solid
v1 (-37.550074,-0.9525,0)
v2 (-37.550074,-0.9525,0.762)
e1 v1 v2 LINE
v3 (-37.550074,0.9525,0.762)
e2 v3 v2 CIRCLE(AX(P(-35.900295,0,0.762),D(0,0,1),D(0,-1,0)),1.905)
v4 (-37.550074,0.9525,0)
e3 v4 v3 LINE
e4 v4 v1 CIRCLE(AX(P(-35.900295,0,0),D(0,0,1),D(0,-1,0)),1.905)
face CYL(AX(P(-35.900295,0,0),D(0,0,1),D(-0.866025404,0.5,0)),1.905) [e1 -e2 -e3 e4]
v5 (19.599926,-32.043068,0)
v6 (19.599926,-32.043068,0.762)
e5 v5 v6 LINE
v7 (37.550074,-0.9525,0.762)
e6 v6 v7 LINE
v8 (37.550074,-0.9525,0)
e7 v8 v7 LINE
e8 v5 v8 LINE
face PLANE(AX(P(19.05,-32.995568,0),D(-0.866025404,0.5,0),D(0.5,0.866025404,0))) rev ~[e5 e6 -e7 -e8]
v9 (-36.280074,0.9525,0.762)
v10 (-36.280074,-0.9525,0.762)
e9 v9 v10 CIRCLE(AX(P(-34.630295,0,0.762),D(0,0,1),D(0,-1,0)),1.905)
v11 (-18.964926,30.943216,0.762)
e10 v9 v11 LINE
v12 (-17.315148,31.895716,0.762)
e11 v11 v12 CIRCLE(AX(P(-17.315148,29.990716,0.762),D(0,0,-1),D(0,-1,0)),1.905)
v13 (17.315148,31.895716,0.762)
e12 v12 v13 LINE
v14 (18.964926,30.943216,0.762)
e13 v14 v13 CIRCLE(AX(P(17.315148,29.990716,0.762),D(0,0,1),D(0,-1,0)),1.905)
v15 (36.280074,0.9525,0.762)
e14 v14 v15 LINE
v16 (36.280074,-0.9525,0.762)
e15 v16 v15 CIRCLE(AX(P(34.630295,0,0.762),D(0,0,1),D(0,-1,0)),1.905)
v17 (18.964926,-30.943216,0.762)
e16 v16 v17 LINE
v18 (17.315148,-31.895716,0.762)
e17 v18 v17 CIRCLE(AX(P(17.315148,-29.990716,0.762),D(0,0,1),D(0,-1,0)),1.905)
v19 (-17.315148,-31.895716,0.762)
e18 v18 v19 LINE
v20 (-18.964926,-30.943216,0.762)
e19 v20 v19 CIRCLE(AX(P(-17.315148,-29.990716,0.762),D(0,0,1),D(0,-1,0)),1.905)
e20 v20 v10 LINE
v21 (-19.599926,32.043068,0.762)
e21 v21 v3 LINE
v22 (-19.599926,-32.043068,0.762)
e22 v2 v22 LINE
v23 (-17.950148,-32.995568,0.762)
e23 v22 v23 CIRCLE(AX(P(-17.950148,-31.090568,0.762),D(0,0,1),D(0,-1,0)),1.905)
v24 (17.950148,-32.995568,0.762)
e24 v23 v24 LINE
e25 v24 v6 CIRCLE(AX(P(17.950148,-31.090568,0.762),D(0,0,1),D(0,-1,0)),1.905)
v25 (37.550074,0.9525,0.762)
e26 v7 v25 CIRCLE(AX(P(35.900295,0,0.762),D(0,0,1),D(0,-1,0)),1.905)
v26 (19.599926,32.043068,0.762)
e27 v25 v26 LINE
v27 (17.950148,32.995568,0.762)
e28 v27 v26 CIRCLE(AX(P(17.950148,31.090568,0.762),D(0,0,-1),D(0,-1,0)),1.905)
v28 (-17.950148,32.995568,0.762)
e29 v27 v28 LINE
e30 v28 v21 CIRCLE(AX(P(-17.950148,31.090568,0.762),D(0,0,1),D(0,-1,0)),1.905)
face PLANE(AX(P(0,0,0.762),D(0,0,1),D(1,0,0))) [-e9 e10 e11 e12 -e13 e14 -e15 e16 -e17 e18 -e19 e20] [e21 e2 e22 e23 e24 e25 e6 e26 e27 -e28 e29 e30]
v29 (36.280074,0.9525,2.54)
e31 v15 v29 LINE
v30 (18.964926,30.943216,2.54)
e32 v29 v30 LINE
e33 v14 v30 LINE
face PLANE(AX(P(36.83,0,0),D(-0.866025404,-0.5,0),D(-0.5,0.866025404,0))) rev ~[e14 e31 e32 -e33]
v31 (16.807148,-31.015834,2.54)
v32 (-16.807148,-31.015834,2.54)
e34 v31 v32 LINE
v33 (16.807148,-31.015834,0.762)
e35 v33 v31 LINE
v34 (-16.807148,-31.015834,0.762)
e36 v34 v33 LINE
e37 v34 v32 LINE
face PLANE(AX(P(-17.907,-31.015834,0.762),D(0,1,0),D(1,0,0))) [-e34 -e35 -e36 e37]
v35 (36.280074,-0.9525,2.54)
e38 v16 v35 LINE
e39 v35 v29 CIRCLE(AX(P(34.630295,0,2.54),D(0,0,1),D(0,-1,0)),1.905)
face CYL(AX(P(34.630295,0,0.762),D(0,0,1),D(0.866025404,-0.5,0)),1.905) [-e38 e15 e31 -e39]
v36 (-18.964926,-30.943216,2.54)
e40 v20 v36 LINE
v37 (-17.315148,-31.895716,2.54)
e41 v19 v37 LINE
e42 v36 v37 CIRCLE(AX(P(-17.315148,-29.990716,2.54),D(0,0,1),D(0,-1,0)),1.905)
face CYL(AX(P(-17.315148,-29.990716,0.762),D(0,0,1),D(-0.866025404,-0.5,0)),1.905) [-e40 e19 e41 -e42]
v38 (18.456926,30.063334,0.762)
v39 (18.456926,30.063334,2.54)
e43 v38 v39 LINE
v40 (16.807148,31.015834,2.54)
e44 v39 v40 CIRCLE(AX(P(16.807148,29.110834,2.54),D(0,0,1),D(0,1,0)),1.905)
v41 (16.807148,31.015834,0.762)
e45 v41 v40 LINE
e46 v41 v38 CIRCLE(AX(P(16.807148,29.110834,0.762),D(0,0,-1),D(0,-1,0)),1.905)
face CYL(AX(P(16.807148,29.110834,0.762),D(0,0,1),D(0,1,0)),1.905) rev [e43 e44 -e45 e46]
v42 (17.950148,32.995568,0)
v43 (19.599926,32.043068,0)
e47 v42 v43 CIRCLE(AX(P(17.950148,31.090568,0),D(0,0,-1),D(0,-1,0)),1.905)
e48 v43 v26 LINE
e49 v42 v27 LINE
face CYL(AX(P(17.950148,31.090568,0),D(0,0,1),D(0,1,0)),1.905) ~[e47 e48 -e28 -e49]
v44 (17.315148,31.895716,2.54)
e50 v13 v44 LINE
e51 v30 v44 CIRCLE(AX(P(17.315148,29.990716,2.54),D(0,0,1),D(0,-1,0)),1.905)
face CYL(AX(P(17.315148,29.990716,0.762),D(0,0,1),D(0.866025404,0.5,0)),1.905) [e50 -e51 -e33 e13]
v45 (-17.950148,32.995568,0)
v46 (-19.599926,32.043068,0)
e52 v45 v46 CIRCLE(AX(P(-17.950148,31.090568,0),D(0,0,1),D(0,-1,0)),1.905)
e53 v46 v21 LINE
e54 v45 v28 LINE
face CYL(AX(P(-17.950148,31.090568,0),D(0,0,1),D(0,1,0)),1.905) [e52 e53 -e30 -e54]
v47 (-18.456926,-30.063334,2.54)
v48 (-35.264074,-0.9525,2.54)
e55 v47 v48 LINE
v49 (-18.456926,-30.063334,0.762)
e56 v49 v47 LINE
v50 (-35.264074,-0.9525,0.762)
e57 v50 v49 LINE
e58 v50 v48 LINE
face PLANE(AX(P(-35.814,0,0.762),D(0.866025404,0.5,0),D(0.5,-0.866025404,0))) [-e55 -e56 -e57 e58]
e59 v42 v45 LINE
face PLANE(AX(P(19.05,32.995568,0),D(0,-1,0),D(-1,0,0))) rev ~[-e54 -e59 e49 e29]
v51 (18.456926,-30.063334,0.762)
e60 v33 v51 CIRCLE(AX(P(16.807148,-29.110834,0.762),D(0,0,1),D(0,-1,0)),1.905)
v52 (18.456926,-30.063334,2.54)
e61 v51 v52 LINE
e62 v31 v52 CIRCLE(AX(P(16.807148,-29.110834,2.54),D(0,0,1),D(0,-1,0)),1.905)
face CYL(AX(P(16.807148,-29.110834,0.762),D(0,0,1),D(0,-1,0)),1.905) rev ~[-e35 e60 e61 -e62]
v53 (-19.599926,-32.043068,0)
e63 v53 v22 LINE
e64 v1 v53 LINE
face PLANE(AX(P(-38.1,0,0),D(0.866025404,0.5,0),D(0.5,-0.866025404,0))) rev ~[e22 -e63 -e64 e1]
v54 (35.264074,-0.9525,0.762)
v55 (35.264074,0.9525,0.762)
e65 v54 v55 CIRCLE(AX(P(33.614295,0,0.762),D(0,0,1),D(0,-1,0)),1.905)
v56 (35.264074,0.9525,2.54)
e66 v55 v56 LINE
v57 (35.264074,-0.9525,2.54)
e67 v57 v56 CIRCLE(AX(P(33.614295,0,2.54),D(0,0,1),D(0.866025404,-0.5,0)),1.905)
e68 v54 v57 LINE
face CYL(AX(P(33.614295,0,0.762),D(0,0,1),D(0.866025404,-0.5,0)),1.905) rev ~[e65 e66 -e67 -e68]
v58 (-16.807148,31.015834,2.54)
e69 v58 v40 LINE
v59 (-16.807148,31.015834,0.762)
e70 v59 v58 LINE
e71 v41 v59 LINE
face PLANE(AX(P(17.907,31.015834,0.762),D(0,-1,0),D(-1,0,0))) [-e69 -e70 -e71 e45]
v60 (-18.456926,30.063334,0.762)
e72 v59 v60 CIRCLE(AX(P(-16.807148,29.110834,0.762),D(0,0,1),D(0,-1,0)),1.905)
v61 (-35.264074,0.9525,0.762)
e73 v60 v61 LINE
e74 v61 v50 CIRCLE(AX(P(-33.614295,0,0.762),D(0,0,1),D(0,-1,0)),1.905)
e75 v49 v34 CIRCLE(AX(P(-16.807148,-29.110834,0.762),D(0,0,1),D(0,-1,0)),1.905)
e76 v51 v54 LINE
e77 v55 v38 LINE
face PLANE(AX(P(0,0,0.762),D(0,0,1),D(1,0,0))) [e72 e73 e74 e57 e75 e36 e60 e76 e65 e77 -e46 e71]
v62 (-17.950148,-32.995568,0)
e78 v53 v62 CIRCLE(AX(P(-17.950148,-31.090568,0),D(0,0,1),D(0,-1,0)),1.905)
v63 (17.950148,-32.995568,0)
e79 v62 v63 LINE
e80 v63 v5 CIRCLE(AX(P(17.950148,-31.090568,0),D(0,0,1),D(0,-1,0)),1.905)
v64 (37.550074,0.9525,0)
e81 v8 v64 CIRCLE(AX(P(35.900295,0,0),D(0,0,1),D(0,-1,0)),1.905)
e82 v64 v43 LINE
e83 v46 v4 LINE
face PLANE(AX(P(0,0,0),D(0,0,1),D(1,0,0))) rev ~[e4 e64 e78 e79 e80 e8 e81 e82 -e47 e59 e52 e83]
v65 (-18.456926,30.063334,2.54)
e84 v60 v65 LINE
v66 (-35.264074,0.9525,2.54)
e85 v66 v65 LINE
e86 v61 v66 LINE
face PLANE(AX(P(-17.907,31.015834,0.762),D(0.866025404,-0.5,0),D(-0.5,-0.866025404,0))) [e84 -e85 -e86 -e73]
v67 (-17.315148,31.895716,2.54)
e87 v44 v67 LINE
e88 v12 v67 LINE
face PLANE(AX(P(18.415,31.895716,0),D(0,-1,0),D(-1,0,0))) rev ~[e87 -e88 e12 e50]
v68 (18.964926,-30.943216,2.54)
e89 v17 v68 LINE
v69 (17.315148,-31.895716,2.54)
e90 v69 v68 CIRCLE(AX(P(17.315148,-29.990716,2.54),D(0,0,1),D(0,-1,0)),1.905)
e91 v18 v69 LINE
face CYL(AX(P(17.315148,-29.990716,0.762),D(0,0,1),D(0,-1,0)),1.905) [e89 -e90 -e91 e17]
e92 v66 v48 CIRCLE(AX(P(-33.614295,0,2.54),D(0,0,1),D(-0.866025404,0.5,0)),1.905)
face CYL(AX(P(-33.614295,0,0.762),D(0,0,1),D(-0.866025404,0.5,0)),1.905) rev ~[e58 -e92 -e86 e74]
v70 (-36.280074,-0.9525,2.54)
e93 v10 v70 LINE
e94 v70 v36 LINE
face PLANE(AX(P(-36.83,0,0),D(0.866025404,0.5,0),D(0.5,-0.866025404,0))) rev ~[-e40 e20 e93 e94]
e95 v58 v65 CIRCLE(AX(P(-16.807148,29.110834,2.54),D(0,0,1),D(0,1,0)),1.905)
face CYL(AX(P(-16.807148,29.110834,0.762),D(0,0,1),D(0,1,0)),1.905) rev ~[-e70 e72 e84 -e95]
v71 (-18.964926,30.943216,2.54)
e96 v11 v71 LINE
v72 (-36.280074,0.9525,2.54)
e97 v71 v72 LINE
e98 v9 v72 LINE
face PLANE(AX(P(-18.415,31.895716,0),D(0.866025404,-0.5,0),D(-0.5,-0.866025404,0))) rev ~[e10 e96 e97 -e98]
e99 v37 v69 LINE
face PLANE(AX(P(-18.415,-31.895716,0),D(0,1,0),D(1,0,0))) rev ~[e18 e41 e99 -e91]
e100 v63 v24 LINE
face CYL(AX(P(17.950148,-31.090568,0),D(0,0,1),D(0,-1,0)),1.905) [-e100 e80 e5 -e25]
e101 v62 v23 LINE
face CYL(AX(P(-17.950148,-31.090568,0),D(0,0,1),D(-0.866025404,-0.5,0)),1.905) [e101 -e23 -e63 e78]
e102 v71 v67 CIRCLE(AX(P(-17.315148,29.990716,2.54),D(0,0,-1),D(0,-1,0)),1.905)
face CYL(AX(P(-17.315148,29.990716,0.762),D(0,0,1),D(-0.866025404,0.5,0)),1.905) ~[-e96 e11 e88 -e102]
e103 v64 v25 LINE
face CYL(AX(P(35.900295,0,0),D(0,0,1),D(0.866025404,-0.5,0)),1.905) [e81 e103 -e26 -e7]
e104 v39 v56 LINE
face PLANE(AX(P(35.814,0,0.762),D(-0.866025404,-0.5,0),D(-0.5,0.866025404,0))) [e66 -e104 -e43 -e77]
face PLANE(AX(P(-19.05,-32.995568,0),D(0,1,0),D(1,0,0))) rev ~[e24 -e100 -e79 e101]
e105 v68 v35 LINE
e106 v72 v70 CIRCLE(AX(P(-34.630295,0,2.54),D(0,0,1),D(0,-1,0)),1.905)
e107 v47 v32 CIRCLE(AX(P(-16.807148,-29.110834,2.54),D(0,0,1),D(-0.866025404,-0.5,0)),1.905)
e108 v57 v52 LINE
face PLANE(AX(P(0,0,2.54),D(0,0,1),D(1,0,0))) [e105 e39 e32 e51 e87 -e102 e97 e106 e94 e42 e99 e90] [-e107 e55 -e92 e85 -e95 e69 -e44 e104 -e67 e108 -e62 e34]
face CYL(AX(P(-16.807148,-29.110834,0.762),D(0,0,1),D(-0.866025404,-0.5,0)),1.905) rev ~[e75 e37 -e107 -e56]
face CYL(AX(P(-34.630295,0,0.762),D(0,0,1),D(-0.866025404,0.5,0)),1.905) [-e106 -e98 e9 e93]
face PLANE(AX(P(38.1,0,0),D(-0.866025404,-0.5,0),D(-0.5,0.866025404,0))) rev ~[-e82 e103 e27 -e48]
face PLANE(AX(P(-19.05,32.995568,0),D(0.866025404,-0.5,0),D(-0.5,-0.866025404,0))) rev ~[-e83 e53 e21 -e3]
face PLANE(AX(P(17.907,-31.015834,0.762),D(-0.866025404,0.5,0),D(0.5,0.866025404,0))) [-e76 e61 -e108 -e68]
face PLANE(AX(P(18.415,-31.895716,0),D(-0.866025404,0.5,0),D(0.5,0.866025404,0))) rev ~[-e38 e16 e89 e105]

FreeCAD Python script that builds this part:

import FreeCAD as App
import Part
import Sketcher

V = App.Vector
Q = App.Units.Quantity


def edges_at(feature, points):
    """Names of the edges that pass closest to the given points."""
    edges = feature.Shape.Edges
    near = lambda p: min(range(len(edges)), key=lambda i: edges[i].distToShape(Part.Vertex(*p))[0])
    return sorted({f"Edge{near(p) + 1}" for p in points})

doc = App.newDocument("Part")
body = doc.addObject("PartDesign::Body", "Body")

# Sketch on XY plane
sketch1 = body.newObject("Sketcher::SketchObject", "Sketch")
sketch1.AttachmentSupport = (doc.getObject("XY_Plane"), [""])
sketch1.MapMode = "FlatFace"
sketch1.addGeometry(Part.LineSegment(V(19, 33, 0), V(-19, 33, 0)), False)
sketch1.addGeometry(Part.LineSegment(V(-19, 33, 0), V(-38, 0, 0)), False)
sketch1.addGeometry(Part.LineSegment(V(-38, 0, 0), V(-19, -33, 0)), False)
sketch1.addGeometry(Part.LineSegment(V(-19, -33, 0), V(19, -33, 0)), False)
sketch1.addGeometry(Part.LineSegment(V(19, -33, 0), V(38, 0, 0)), False)
sketch1.addGeometry(Part.LineSegment(V(38, 0, 0), V(19, 33, 0)), False)
sketch1.addConstraint(Sketcher.Constraint("Coincident", 0, 2, 1, 1))
sketch1.addConstraint(Sketcher.Constraint("Coincident", 1, 2, 2, 1))
sketch1.addConstraint(Sketcher.Constraint("Coincident", 2, 2, 3, 1))
sketch1.addConstraint(Sketcher.Constraint("Coincident", 3, 2, 4, 1))
sketch1.addConstraint(Sketcher.Constraint("Coincident", 4, 2, 5, 1))
sketch1.addConstraint(Sketcher.Constraint("Coincident", 5, 2, 0, 1))
sketch1.addConstraint(Sketcher.Constraint("Horizontal", 0))
sketch1.addConstraint(Sketcher.Constraint("Horizontal", 3))
sketch1.addConstraint(Sketcher.Constraint("Symmetric", 0, 2, 3, 2, -1, 1))
sketch1.addConstraint(Sketcher.Constraint("Symmetric", 1, 2, 4, 2, -1, 1))
sketch1.addConstraint(Sketcher.Constraint("PointOnObject", 1, 2, -1))
sketch1.addConstraint(Sketcher.Constraint("Parallel", 2, 5))
sketch1.addConstraint(Sketcher.Constraint("Vertical", 0, 2, 2, 2))
sketch1.addConstraint(Sketcher.Constraint("DistanceX", 0, 2, 0, 1, Q("1.5 in")))
sketch1.addConstraint(Sketcher.Constraint("Angle", 1, Q("-120 deg")))
sketch1.addConstraint(Sketcher.Constraint("DistanceX", 1, 2, 4, 2, Q("3 in")))
pad1 = body.newObject("PartDesign::Pad", "Pad")
pad1.Profile = sketch1
pad1.Length = Q("0.03 in")
doc.recompute()

fillet = body.newObject("PartDesign::Fillet", "Fillet")
fillet.Base = (pad1, edges_at(pad1, [
    (38.1, 0, 0.381),
    (19.05, 32.996, 0.381),
    (-19.05, 32.996, 0.381),
    (-38.1, 0, 0.381),
    (-19.05, -32.996, 0.381),
    (19.05, -32.996, 0.381),
]))
fillet.Radius = Q("0.075 in")

# Sketch on XY plane
sketch2 = body.newObject("Sketcher::SketchObject", "Sketch001")
sketch2.AttachmentSupport = (doc.getObject("XY_Plane"), [""])
sketch2.MapMode = "FlatFace"
sketch2.addGeometry(Part.LineSegment(V(18, 32, 0), V(-18, 32, 0)), False)
sketch2.addGeometry(Part.LineSegment(V(-18, 32, 0), V(-37, 0, 0)), False)
sketch2.addGeometry(Part.LineSegment(V(-37, 0, 0), V(-18, -32, 0)), False)
sketch2.addGeometry(Part.LineSegment(V(-18, -32, 0), V(18, -32, 0)), False)
sketch2.addGeometry(Part.LineSegment(V(18, -32, 0), V(37, 0, 0)), False)
sketch2.addGeometry(Part.LineSegment(V(37, 0, 0), V(18, 32, 0)), False)
sketch2.addConstraint(Sketcher.Constraint("Coincident", 0, 2, 1, 1))
sketch2.addConstraint(Sketcher.Constraint("Coincident", 1, 2, 2, 1))
sketch2.addConstraint(Sketcher.Constraint("Coincident", 2, 2, 3, 1))
sketch2.addConstraint(Sketcher.Constraint("Coincident", 3, 2, 4, 1))
sketch2.addConstraint(Sketcher.Constraint("Coincident", 4, 2, 5, 1))
sketch2.addConstraint(Sketcher.Constraint("Coincident", 5, 2, 0, 1))
sketch2.addConstraint(Sketcher.Constraint("Horizontal", 0))
sketch2.addConstraint(Sketcher.Constraint("Horizontal", 3))
sketch2.addConstraint(Sketcher.Constraint("Symmetric", 0, 2, 3, 2, -1, 1))
sketch2.addConstraint(Sketcher.Constraint("Symmetric", 1, 2, 4, 2, -1, 1))
sketch2.addConstraint(Sketcher.Constraint("PointOnObject", 1, 2, -1))
sketch2.addConstraint(Sketcher.Constraint("Parallel", 2, 5))
sketch2.addConstraint(Sketcher.Constraint("Vertical", 0, 2, 2, 2))
sketch2.addConstraint(Sketcher.Constraint("Angle", 1, Q("-120 deg")))
sketch2.addConstraint(Sketcher.Constraint("DistanceX", 0, 2, 0, 1, Q("1.45 in")))
sketch2.addConstraint(Sketcher.Constraint("DistanceX", 1, 2, 4, 2, Q("2.9 in")))
pad2 = body.newObject("PartDesign::Pad", "Pad001")
pad2.Profile = sketch2
pad2.Length = Q("0.1 in")
doc.recompute()

fillet2 = body.newObject("PartDesign::Fillet", "Fillet001")
fillet2.Base = (pad2, edges_at(pad2, [
    (-18.415, -31.896, 1.651),
    (18.415, -31.896, 1.651),
    (36.83, 0, 1.651),
    (-36.83, 0, 1.651),
    (18.415, 31.896, 1.651),
    (-18.415, 31.896, 1.651),
]))
fillet2.Radius = Q("0.075 in")
body2 = doc.addObject("PartDesign::Body", "Body001")

# Sketch on XY plane
sketch3 = body2.newObject("Sketcher::SketchObject", "Sketch002")
sketch3.AttachmentSupport = (doc.getObject("XY_Plane001"), [""])
sketch3.MapMode = "FlatFace"
sketch3.addGeometry(Part.LineSegment(V(18, 31, 0), V(-18, 31, 0)), False)
sketch3.addGeometry(Part.LineSegment(V(-18, 31, 0), V(-36, 0, 0)), False)
sketch3.addGeometry(Part.LineSegment(V(-36, 0, 0), V(-18, -31, 0)), False)
sketch3.addGeometry(Part.LineSegment(V(-18, -31, 0), V(18, -31, 0)), False)
sketch3.addGeometry(Part.LineSegment(V(18, -31, 0), V(36, 0, 0)), False)
sketch3.addGeometry(Part.LineSegment(V(36, 0, 0), V(18, 31, 0)), False)
sketch3.addConstraint(Sketcher.Constraint("Coincident", 0, 2, 1, 1))
sketch3.addConstraint(Sketcher.Constraint("Coincident", 1, 2, 2, 1))
sketch3.addConstraint(Sketcher.Constraint("Coincident", 2, 2, 3, 1))
sketch3.addConstraint(Sketcher.Constraint("Coincident", 3, 2, 4, 1))
sketch3.addConstraint(Sketcher.Constraint("Coincident", 4, 2, 5, 1))
sketch3.addConstraint(Sketcher.Constraint("Coincident", 5, 2, 0, 1))
sketch3.addConstraint(Sketcher.Constraint("Horizontal", 0))
sketch3.addConstraint(Sketcher.Constraint("Horizontal", 3))
sketch3.addConstraint(Sketcher.Constraint("Symmetric", 0, 2, 3, 2, -1, 1))
sketch3.addConstraint(Sketcher.Constraint("Symmetric", 1, 2, 4, 2, -1, 1))
sketch3.addConstraint(Sketcher.Constraint("PointOnObject", 1, 2, -1))
sketch3.addConstraint(Sketcher.Constraint("Parallel", 2, 5))
sketch3.addConstraint(Sketcher.Constraint("Vertical", 0, 2, 2, 2))
sketch3.addConstraint(Sketcher.Constraint("Angle", 1, Q("-120 deg")))
sketch3.addConstraint(Sketcher.Constraint("DistanceX", 0, 2, 0, 1, Q("1.41 in")))
sketch3.addConstraint(Sketcher.Constraint("Distance", 1, Q("1.41 in")))
pad3 = body2.newObject("PartDesign::Pad", "Pad002")
pad3.Profile = sketch3
pad3.Length = Q("0.1 in")
doc.recompute()

fillet3 = body2.newObject("PartDesign::Fillet", "Fillet002")
fillet3.Base = (pad3, edges_at(pad3, [
    (-17.907, -31.016, 1.27),
    (17.907, -31.016, 1.27),
    (35.814, 0, 1.27),
    (-35.814, 0, 1.27),
    (17.907, 31.016, 1.27),
    (-17.907, 31.016, 1.27),
]))
fillet3.Radius = Q("0.075 in")
body3 = doc.addObject("PartDesign::Body", "Body002")
doc.recompute()

body2.Placement = App.Placement(V(0, 0, 0.762), App.Rotation(V(0, 0, 1), 0))
boolean = body3.newObject("PartDesign::Boolean", "Boolean")
boolean.Type = "Fuse"
boolean.addObjects([body2])
doc.recompute()

boolean2 = body.newObject("PartDesign::Boolean", "Boolean001")
boolean2.Type = "Cut"
boolean2.addObjects([body3])

doc.recompute()
